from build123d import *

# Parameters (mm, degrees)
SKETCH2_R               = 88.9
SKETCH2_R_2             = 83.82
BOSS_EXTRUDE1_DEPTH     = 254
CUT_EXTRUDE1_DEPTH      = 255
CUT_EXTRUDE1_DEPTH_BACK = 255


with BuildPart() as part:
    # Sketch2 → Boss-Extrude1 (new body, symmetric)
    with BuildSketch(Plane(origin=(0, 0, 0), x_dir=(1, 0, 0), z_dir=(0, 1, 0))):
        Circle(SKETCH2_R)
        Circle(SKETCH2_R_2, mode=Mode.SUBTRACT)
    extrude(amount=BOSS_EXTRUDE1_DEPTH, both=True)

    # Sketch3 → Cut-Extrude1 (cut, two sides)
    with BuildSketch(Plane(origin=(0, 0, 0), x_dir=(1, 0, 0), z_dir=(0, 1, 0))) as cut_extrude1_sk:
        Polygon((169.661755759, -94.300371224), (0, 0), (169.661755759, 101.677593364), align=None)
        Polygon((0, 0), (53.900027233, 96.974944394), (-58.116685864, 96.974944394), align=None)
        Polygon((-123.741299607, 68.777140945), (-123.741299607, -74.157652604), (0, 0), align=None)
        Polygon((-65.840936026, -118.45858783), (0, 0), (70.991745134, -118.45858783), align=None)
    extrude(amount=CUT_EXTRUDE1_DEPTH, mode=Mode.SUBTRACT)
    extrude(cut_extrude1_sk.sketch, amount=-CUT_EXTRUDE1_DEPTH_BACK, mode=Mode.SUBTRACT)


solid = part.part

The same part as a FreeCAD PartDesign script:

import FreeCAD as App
import Part
import Sketcher

V = App.Vector
Q = App.Units.Quantity


def add_polygon(sketch, points):
    """Adds a closed chain of lines whose ends are joined by coincident constraints."""
    first, n = sketch.GeometryCount, len(points)
    for a, b in zip(points, points[1:] + points[:1]):
        sketch.addGeometry(Part.LineSegment(App.Vector(*a, 0), App.Vector(*b, 0)), False)
    for i in range(n):
        sketch.addConstraint(Sketcher.Constraint("Coincident", first + i, 2, first + (i + 1) % n, 1))

doc = App.newDocument("Part")
body = doc.addObject("PartDesign::Body", "Body")
body.AllowCompound = True

# Sketch on XZ plane
sketch1 = doc.addObject("Sketcher::SketchObject", "Sketch")
body.addObject(sketch1)
sketch1.AttachmentSupport = (doc.XZ_Plane, [""])
sketch1.MapMode = "FlatFace"
sketch1.addGeometry(Part.Circle(V(0, 0, 0), V(0, 0, 1), 89), False)
sketch1.addGeometry(Part.Circle(V(0, 0, 0), V(0, 0, 1), 84), False)
sketch1.addConstraint(Sketcher.Constraint("Coincident", 0, 3, -1, 1))
sketch1.addConstraint(Sketcher.Constraint("Coincident", 1, 3, -1, 1))
sketch1.addConstraint(Sketcher.Constraint("Diameter", 0, Q("7 in")))
sketch1.addConstraint(Sketcher.Constraint("Diameter", 1, Q("6.6 in")))
pad1 = doc.addObject("PartDesign::Pad", "Pad")
body.addObject(pad1)
pad1.Profile = sketch1
pad1.Length = Q("20 in")
pad1.Midplane = True

# Sketch on XZ plane
sketch2 = doc.addObject("Sketcher::SketchObject", "Sketch001")
body.addObject(sketch2)
sketch2.AttachmentSupport = (doc.XZ_Plane, [""])
sketch2.MapMode = "FlatFace"
add_polygon(sketch2, [(0, 0), (170, 94), (170, -102)])  # lines 0-2
add_polygon(sketch2, [(0, 0), (54, -97), (-58, -97)])  # lines 3-5
add_polygon(sketch2, [(-124, -69), (-124, 74), (0, 0)])  # lines 6-8
add_polygon(sketch2, [(0, 0), (-66, 118), (71, 118)])  # lines 9-11
sketch2.addConstraint(Sketcher.Constraint("Vertical", 1))
sketch2.addConstraint(Sketcher.Constraint("Horizontal", 4))
sketch2.addConstraint(Sketcher.Constraint("Vertical", 6))
sketch2.addConstraint(Sketcher.Constraint("Horizontal", 10))
sketch2.addConstraint(Sketcher.Constraint("Coincident", 2, 2, -1, 1))
sketch2.addConstraint(Sketcher.Constraint("Coincident", 5, 2, -1, 1))
sketch2.addConstraint(Sketcher.Constraint("Coincident", 7, 2, -1, 1))
sketch2.addConstraint(Sketcher.Constraint("Coincident", 11, 2, -1, 1))
sketch2.addConstraint(Sketcher.Constraint("Perpendicular", 0, 3))
sketch2.addConstraint(Sketcher.Constraint("Perpendicular", 2, 5))
sketch2.addConstraint(Sketcher.Constraint("Perpendicular", 5, 7))
sketch2.addConstraint(Sketcher.Constraint("Perpendicular", 3, 8))
sketch2.addConstraint(Sketcher.Constraint("Perpendicular", 8, 9))
sketch2.addConstraint(Sketcher.Constraint("Perpendicular", 7, 11))
sketch2.addConstraint(Sketcher.Constraint("DistanceX", 10, 1, 10, 2, Q("136.832681 mm")))
sketch2.addConstraint(Sketcher.Constraint("DistanceX", 6, 2, -1, 1, Q("123.7413 mm")))
sketch2.addConstraint(Sketcher.Constraint("Distance", 0, Q("194.107371 mm")))
sketch2.addConstraint(Sketcher.Constraint("Distance", 11, Q("138.102371 mm")))
sketch2.addConstraint(Sketcher.Constraint("DistanceX", 4, 2, 4, 1, Q("112.016713 mm")))
sketch2.addConstraint(Sketcher.Constraint("DistanceY", 1, 2, 1, 1, Q("195.977965 mm")))
pocket1 = doc.addObject("PartDesign::Pocket", "Pocket")
body.addObject(pocket1)
pocket1.Profile = sketch2
pocket1.Type = "ThroughAll"
pocket1.Midplane = True

doc.recompute()
